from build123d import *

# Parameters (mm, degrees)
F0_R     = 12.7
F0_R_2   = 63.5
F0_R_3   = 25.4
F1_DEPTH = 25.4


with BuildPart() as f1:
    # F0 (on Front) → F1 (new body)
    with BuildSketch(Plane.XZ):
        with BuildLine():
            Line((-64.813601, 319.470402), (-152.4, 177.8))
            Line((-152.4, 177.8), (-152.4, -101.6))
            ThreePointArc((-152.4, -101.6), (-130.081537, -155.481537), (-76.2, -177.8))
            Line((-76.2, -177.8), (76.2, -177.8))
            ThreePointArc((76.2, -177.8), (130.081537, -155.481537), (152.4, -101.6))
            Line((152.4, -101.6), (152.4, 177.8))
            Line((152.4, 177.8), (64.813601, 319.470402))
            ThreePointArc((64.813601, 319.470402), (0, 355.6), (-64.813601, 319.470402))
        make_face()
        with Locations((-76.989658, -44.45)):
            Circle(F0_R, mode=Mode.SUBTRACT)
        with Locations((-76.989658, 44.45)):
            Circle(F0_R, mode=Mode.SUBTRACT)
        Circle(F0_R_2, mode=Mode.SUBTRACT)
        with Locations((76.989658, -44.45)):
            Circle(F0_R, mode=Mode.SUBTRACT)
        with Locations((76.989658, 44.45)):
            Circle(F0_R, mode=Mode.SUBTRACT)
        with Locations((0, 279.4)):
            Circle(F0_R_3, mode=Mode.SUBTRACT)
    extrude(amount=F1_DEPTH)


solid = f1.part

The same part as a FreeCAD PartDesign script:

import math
import FreeCAD as App
import Part
import Sketcher
Q = App.Units.Quantity

doc = App.newDocument("Part")
params = doc.addObject("Spreadsheet::Sheet", "Params")
for row, (alias, value) in enumerate([
    ("sketch1_diameter", "1 in"),
    ("sketch1_diameter2", "5 in"),
    ("sketch1_diameter3", "2 in"),
    ("sketch1_radius", "3 in"),
    ("sketch1_width", "6 in"),
    ("pad1_length", "1 in"),
], start=1):
    params.set(f"A{row}", alias)
    params.set(f"B{row}", "=" + value)
    params.setAlias(f"B{row}", alias)

body = doc.addObject("PartDesign::Body", "Body")

# Sketch on XZ plane
sketch1 = body.newObject("Sketcher::SketchObject", "Sketch")
sketch1.AttachmentSupport = (doc.getObject("XZ_Plane"), [""])
sketch1.MapMode = "FlatFace"
sketch1.addGeometry([
    Part.LineSegment(App.Vector(-65, 319, 0), App.Vector(-152, 178, 0)),  # 0
    Part.LineSegment(App.Vector(-152, 178, 0), App.Vector(-152, -102, 0)),  # 1
    Part.ArcOfCircle(Part.Circle(App.Vector(-76, -102, 0), App.Vector(0, 0, 1), 76), math.radians(180), math.radians(270)),  # 2
    Part.LineSegment(App.Vector(-76, -178, 0), App.Vector(76, -178, 0)),  # 3
    Part.ArcOfCircle(Part.Circle(App.Vector(76, -102, 0), App.Vector(0, 0, 1), 76), math.radians(-90), math.radians(0)),  # 4
    Part.LineSegment(App.Vector(152, -102, 0), App.Vector(152, 178, 0)),  # 5
    Part.LineSegment(App.Vector(152, 178, 0), App.Vector(65, 319, 0)),  # 6
    Part.ArcOfCircle(Part.Circle(App.Vector(0, 279, 0), App.Vector(0, 0, 1), 76), math.radians(32), math.radians(148)),  # 7
    Part.Circle(App.Vector(-77, -44, 0), App.Vector(0, 0, 1), 13),  # 8
    Part.Circle(App.Vector(-77, 44, 0), App.Vector(0, 0, 1), 13),  # 9
    Part.Circle(App.Vector(0, 0, 0), App.Vector(0, 0, 1), 64),  # 10
    Part.Circle(App.Vector(77, -44, 0), App.Vector(0, 0, 1), 13),  # 11
    Part.Circle(App.Vector(77, 44, 0), App.Vector(0, 0, 1), 13),  # 12
    Part.Circle(App.Vector(0, 279, 0), App.Vector(0, 0, 1), 25),  # 13
], False)
sketch1.addConstraint([
    Sketcher.Constraint("Coincident", 0, 2, 1, 1),
    Sketcher.Constraint("Tangent", 1, 2, 2, 1),
    Sketcher.Constraint("Tangent", 2, 2, 3, 1),
    Sketcher.Constraint("Tangent", 3, 2, 4, 1),
    Sketcher.Constraint("Tangent", 4, 2, 5, 1),
    Sketcher.Constraint("Coincident", 5, 2, 6, 1),
    Sketcher.Constraint("Tangent", 6, 2, 7, 1),
    Sketcher.Constraint("Tangent", 7, 2, 0, 1),
    Sketcher.Constraint("Vertical", 1),
    Sketcher.Constraint("Horizontal", 3),
    Sketcher.Constraint("Vertical", 5),
    Sketcher.Constraint("Coincident", 10, 3, -1, 1),
    Sketcher.Constraint("Coincident", 13, 3, 7, 3),
    Sketcher.Constraint("Equal", 2, 4),
    Sketcher.Constraint("Equal", 4, 7),
    Sketcher.Constraint("Equal", 8, 9),
    Sketcher.Constraint("Equal", 9, 11),
    Sketcher.Constraint("Equal", 11, 12),
    Sketcher.Constraint("Symmetric", 9, 3, 11, 3, -1, 1),
    Sketcher.Constraint("Symmetric", 8, 3, 12, 3, -1, 1),
    Sketcher.Constraint("Symmetric", 8, 3, 11, 3, -2),
    Sketcher.Constraint("Symmetric", 0, 2, 5, 2, -2),
    Sketcher.Constraint("PointOnObject", 7, 3, -2),
    Sketcher.Constraint("Diameter", 8, Q("1 in")),
    Sketcher.Constraint("Diameter", 10, Q("5 in")),
    Sketcher.Constraint("Diameter", 13, Q("2 in")),
    Sketcher.Constraint("Radius", 2, Q("3 in")),
    Sketcher.Constraint("DistanceX", 3, 1, 3, 2, Q("6 in")),
    Sketcher.Constraint("DistanceY", 1, 2, 1, 1, Q("11 in")),
    Sketcher.Constraint("DistanceY", 2, 3, -1, 1, Q("4 in")),
    Sketcher.Constraint("DistanceY", -1, 1, 7, 3, Q("11 in")),
    Sketcher.Constraint("DistanceY", 8, 3, 9, 3, Q("3.5 in")),
    Sketcher.Constraint("DistanceX", 8, 3, -1, 1, Q("76.989658 mm")),
])
sketch1.setExpression("Constraints[23]", "Params.sketch1_diameter")
sketch1.setExpression("Constraints[24]", "Params.sketch1_diameter2")
sketch1.setExpression("Constraints[25]", "Params.sketch1_diameter3")
sketch1.setExpression("Constraints[26]", "Params.sketch1_radius")
sketch1.setExpression("Constraints[27]", "Params.sketch1_width")
pad1 = body.newObject("PartDesign::Pad", "Pad")
pad1.Profile = sketch1
pad1.setExpression("Length", "Params.pad1_length")

doc.recompute()
